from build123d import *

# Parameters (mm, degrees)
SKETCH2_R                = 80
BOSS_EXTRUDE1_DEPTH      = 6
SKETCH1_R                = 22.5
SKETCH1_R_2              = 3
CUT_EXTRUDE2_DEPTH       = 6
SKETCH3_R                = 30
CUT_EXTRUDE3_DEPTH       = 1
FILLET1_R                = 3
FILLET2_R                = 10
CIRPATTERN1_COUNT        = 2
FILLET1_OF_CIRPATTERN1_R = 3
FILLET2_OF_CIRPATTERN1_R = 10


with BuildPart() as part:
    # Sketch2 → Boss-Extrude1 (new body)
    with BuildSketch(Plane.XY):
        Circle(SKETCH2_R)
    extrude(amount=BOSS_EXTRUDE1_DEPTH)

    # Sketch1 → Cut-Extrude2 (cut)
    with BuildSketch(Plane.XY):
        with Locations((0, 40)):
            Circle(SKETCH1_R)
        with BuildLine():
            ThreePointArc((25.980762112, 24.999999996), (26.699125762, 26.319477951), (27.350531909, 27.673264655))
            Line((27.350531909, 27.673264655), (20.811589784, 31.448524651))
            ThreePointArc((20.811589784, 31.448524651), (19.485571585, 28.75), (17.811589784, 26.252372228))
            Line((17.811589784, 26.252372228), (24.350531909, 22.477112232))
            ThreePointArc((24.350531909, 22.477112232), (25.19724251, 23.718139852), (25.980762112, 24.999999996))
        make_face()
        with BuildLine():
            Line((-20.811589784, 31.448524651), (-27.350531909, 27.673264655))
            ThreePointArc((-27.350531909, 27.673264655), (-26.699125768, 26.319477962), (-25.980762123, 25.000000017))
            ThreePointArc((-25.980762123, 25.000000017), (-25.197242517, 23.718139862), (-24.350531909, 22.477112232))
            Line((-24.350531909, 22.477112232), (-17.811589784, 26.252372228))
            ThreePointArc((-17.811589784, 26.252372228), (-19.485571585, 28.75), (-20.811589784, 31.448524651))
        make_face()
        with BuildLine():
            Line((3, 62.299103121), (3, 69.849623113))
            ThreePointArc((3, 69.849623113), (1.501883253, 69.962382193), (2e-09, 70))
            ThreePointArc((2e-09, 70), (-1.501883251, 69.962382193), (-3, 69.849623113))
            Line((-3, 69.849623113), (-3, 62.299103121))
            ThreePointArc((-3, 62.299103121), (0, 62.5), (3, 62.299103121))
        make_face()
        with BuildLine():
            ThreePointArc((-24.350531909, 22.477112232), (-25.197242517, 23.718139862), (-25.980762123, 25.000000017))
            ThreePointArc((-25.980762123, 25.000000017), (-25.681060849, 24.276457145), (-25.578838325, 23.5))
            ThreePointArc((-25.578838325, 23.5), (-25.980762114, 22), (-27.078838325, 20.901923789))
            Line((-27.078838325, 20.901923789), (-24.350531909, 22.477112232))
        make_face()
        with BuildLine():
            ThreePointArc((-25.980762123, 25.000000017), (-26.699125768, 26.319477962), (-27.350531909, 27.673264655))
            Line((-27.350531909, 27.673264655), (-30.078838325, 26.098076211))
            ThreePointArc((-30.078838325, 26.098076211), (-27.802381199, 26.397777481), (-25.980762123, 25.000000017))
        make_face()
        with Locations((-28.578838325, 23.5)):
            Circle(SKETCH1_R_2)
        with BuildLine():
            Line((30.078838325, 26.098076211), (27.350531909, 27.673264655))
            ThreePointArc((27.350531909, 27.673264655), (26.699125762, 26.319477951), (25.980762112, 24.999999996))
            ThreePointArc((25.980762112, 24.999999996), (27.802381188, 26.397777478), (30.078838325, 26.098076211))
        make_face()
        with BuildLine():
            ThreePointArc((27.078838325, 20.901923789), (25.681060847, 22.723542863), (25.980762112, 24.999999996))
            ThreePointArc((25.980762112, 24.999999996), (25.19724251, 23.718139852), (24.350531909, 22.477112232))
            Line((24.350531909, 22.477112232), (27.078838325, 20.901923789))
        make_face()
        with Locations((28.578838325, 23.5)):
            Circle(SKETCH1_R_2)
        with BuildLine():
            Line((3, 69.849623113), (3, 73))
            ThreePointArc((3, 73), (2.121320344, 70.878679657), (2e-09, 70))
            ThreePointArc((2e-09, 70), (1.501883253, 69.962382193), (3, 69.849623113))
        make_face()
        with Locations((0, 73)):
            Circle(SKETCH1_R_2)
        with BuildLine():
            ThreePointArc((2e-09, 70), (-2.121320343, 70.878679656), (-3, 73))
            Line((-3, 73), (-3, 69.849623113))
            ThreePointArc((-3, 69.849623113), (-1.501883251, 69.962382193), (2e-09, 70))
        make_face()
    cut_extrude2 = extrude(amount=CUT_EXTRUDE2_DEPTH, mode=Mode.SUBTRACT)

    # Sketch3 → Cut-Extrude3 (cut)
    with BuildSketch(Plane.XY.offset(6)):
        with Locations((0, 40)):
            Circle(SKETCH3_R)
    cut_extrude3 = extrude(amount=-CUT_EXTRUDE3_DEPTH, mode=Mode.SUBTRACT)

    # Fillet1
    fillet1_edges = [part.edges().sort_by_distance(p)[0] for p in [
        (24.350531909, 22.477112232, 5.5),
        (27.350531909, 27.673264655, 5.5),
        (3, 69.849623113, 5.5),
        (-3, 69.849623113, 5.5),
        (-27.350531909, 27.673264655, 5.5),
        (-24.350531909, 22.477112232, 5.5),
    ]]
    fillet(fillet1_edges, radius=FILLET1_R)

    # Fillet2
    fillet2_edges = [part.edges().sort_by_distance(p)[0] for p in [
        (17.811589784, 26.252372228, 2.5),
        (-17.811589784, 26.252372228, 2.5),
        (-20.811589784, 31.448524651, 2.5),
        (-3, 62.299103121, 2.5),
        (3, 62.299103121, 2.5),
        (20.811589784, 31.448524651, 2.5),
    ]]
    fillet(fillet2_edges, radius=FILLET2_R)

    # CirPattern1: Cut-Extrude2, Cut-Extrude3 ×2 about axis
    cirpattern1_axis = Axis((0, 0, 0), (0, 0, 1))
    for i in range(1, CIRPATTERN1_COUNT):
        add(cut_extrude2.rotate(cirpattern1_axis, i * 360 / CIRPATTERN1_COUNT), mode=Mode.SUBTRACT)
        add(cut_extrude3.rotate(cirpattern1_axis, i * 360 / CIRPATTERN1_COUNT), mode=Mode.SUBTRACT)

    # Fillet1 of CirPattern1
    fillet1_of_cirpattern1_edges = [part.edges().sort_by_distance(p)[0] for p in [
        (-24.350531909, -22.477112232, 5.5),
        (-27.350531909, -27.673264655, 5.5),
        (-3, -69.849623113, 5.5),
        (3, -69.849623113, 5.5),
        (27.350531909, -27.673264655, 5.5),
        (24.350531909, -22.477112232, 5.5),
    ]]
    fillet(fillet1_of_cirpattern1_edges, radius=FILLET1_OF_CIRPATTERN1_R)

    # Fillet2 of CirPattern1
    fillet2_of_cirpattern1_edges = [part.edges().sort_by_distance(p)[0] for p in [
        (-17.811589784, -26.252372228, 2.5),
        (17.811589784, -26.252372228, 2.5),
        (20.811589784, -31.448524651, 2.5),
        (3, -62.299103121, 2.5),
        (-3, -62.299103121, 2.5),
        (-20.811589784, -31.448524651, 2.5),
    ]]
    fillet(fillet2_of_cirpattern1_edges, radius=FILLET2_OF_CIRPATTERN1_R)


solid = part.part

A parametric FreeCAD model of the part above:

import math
import FreeCAD as App
import Part
import Sketcher
from FreeCAD import Vector
Q = App.Units.Quantity


def edges_at(feature, points):
    """Names of the edges that pass closest to the given points."""
    edges = feature.Shape.Edges
    near = lambda p: min(range(len(edges)), key=lambda i: edges[i].distToShape(Part.Vertex(*p))[0])
    return sorted({f"Edge{near(p) + 1}" for p in points})

doc = App.newDocument("Part")
body = doc.addObject("PartDesign::Body", "Body")

sketch1 = body.newObject("Sketcher::SketchObject", "Sketch")
sketch1.AttachmentSupport = (doc.getObject("XY_Plane"), [""])
sketch1.MapMode = "FlatFace"
sketch1.addGeometry(Part.Circle(Vector(0, 0, 0), Vector(0, 0, 1), 80), False)
sketch1.addConstraint([
    Sketcher.Constraint("Coincident", 0, 3, -1, 1),
    Sketcher.Constraint("Diameter", 0, 160.0),
])
pad1 = body.newObject("PartDesign::Pad", "Pad")
pad1.Profile = sketch1
pad1.Length = 6

sketch2 = body.newObject("Sketcher::SketchObject", "Sketch001")
sketch2.AttachmentSupport = (doc.getObject("XY_Plane"), [""])
sketch2.MapMode = "FlatFace"
sketch2.addGeometry([
    Part.LineSegment(Vector(17.81159, 26.252372, 0), Vector(24.350532, 22.477112, 0)),
    Part.LineSegment(Vector(24.350532, 22.477112, 0), Vector(27.078838, 20.901924, 0)),
    Part.ArcOfCircle(Part.Circle(Vector(28.578838, 23.5, 0), Vector(0, 0, 1), 3), math.radians(-120), math.radians(60)),
    Part.LineSegment(Vector(30.078838, 26.098076, 0), Vector(27.350532, 27.673265, 0)),
    Part.LineSegment(Vector(27.350532, 27.673265, 0), Vector(20.81159, 31.448525, 0)),
    Part.ArcOfCircle(Part.Circle(Vector(0, 40, 0), Vector(0, 0, 1), 22.5), math.radians(-22.337744), math.radians(82.337744)),
    Part.LineSegment(Vector(3, 62.299103, 0), Vector(3, 73, 0)),
    Part.ArcOfCircle(Part.Circle(Vector(0, 73, 0), Vector(0, 0, 1), 3), math.radians(0), math.radians(180)),
    Part.LineSegment(Vector(-3, 73, 0), Vector(-3, 62.299103, 0)),
    Part.ArcOfCircle(Part.Circle(Vector(0, 40, 0), Vector(0, 0, 1), 22.5), math.radians(97.662256), math.radians(202.337744)),
    Part.LineSegment(Vector(-20.81159, 31.448525, 0), Vector(-27.350532, 27.673265, 0)),
    Part.LineSegment(Vector(-27.350532, 27.673265, 0), Vector(-30.078838, 26.098076, 0)),
    Part.ArcOfCircle(Part.Circle(Vector(-28.578838, 23.5, 0), Vector(0, 0, 1), 3), math.radians(120), math.radians(300)),
    Part.LineSegment(Vector(-27.078838, 20.901924, 0), Vector(-24.350532, 22.477112, 0)),
    Part.LineSegment(Vector(-24.350532, 22.477112, 0), Vector(-17.81159, 26.252372, 0)),
    Part.ArcOfCircle(Part.Circle(Vector(0, 40, 0), Vector(0, 0, 1), 22.5), math.radians(-142.337744), math.radians(-37.662256)),
], False)
sketch2.addConstraint([
    Sketcher.Constraint("Coincident", 0, 2, 1, 1),
    Sketcher.Constraint("Tangent", 1, 2, 2, 1),
    Sketcher.Constraint("Tangent", 2, 2, 3, 1),
    Sketcher.Constraint("Coincident", 3, 2, 4, 1),
    Sketcher.Constraint("Coincident", 4, 2, 5, 1),
    Sketcher.Constraint("Coincident", 5, 2, 6, 1),
    Sketcher.Constraint("Tangent", 6, 2, 7, 1),
    Sketcher.Constraint("Tangent", 7, 2, 8, 1),
    Sketcher.Constraint("Coincident", 8, 2, 9, 1),
    Sketcher.Constraint("Coincident", 9, 2, 10, 1),
    Sketcher.Constraint("Coincident", 10, 2, 11, 1),
    Sketcher.Constraint("Tangent", 11, 2, 12, 1),
    Sketcher.Constraint("Tangent", 12, 2, 13, 1),
    Sketcher.Constraint("Coincident", 13, 2, 14, 1),
    Sketcher.Constraint("Coincident", 14, 2, 15, 1),
    Sketcher.Constraint("Coincident", 15, 2, 0, 1),
    Sketcher.Constraint("Vertical", 6),
    Sketcher.Constraint("Vertical", 8),
    Sketcher.Constraint("Coincident", 9, 3, 5, 3),
    Sketcher.Constraint("Coincident", 15, 3, 5, 3),
    Sketcher.Constraint("Equal", 2, 7),
    Sketcher.Constraint("Equal", 5, 9),
    Sketcher.Constraint("Equal", 7, 12),
    Sketcher.Constraint("Equal", 9, 15),
    Sketcher.Constraint("Symmetric", 2, 3, 12, 3, -2),
    Sketcher.Constraint("Symmetric", 5, 2, 8, 2, -2),
    Sketcher.Constraint("Symmetric", 3, 2, 10, 2, -2),
    Sketcher.Constraint("Symmetric", 0, 2, 13, 2, -2),
    Sketcher.Constraint("Parallel", 0, 1),
    Sketcher.Constraint("Parallel", 1, 3),
    Sketcher.Constraint("Parallel", 3, 4),
    Sketcher.Constraint("Parallel", 10, 11),
    Sketcher.Constraint("Parallel", 13, 14),
    Sketcher.Constraint("Equal", 1, 3),
    Sketcher.Constraint("Equal", 0, 4),
    Sketcher.Constraint("Radius", 2, 3.0),
    Sketcher.Constraint("Radius", 5, 22.5),
    Sketcher.Constraint("Angle", 0, Q("-30 deg")),
    Sketcher.Constraint("DistanceY", -1, 1, 5, 3, 40.0),
    Sketcher.Constraint("DistanceY", -1, 1, 7, 3, 73.0),
    Sketcher.Constraint("DistanceY", -1, 1, 2, 3, 23.5),
    Sketcher.Constraint("Distance", 0, 7.55052),
])
pocket1 = body.newObject("PartDesign::Pocket", "Pocket")
pocket1.Profile = sketch2
pocket1.Length = 6
pocket1.Reversed = True

sketch3 = body.newObject("Sketcher::SketchObject", "Sketch002")
sketch3.AttachmentSupport = (doc.getObject("XY_Plane"), [""])
sketch3.MapMode = "FlatFace"
sketch3.AttachmentOffset = App.Placement(Vector(0, 0, 6), App.Rotation())
sketch3.addGeometry(Part.Circle(Vector(0, 40, 0), Vector(0, 0, 1), 30), False)
sketch3.addConstraint([
    Sketcher.Constraint("PointOnObject", 0, 3, -2),
    Sketcher.Constraint("Diameter", 0, 60.0),
    Sketcher.Constraint("DistanceY", -1, 1, 0, 3, 40.0),
])
pocket2 = body.newObject("PartDesign::Pocket", "Pocket001")
pocket2.Profile = sketch3
pocket2.Length = 1
doc.recompute()

fillet = body.newObject("PartDesign::Fillet", "Fillet")
fillet.Base = (pocket2, edges_at(pocket2, [
    (24.351, 22.477, 5.5),
    (27.351, 27.673, 5.5),
    (3, 69.85, 5.5),
    (-3, 69.85, 5.5),
    (-27.351, 27.673, 5.5),
    (-24.351, 22.477, 5.5),
]))
fillet.Radius = 3
doc.recompute()

fillet2 = body.newObject("PartDesign::Fillet", "Fillet001")
fillet2.Base = (fillet, edges_at(fillet, [
    (17.812, 26.252, 2.5),
    (-17.812, 26.252, 2.5),
    (-20.812, 31.449, 2.5),
    (-3, 62.299, 2.5),
    (3, 62.299, 2.5),
    (20.812, 31.449, 2.5),
]))
fillet2.Radius = 10
doc.recompute()

polarpattern = body.newObject("PartDesign::PolarPattern", "PolarPattern")
polarpattern.Originals = [pocket1, pocket2]
polarpattern.Axis = (doc.getObject("Z_Axis"), [""])
polarpattern.Angle = 360
polarpattern.Occurrences = 2
body.Tip = polarpattern
doc.recompute()

fillet3 = body.newObject("PartDesign::Fillet", "Fillet002")
fillet3.Base = (polarpattern, edges_at(polarpattern, [
    (-24.351, -22.477, 5.5),
    (-27.351, -27.673, 5.5),
    (-3, -69.85, 5.5),
    (3, -69.85, 5.5),
    (27.351, -27.673, 5.5),
    (24.351, -22.477, 5.5),
]))
fillet3.Radius = 3
doc.recompute()

fillet4 = body.newObject("PartDesign::Fillet", "Fillet003")
fillet4.Base = (fillet3, edges_at(fillet3, [
    (-17.812, -26.252, 2.5),
    (17.812, -26.252, 2.5),
    (20.812, -31.449, 2.5),
    (3, -62.299, 2.5),
    (-3, -62.299, 2.5),
    (-20.812, -31.449, 2.5),
]))
fillet4.Radius = 10

doc.recompute()
